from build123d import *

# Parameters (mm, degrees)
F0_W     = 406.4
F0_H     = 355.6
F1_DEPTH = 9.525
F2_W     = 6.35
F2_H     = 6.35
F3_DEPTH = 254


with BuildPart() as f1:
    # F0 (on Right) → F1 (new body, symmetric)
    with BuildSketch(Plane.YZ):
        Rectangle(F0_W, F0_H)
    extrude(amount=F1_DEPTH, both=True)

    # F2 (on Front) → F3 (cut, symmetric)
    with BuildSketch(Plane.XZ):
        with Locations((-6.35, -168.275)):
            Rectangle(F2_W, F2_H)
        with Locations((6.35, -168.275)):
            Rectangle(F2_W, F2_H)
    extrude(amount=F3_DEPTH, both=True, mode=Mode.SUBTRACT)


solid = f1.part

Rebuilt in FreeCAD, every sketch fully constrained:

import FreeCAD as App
import Part
import Sketcher
from FreeCAD import Vector
Q = App.Units.Quantity


def add_polygon(sketch, points):
    """Adds a closed chain of lines whose ends are joined by coincident constraints."""
    first, n = sketch.GeometryCount, len(points)
    for a, b in zip(points, points[1:] + points[:1]):
        sketch.addGeometry(Part.LineSegment(App.Vector(*a, 0), App.Vector(*b, 0)), False)
    for i in range(n):
        sketch.addConstraint(Sketcher.Constraint("Coincident", first + i, 2, first + (i + 1) % n, 1))

doc = App.newDocument("Part")
body = doc.addObject("PartDesign::Body", "Body")

# Sketch on YZ plane
sketch1 = body.newObject("Sketcher::SketchObject", "Sketch")
sketch1.AttachmentSupport = (doc.getObject("YZ_Plane"), [""])
sketch1.MapMode = "FlatFace"
add_polygon(sketch1, [(-203.2, 177.8), (-203.2, -177.8), (203.2, -177.8), (203.2, 177.8)])  # lines 0-3
sketch1.addConstraint([
    Sketcher.Constraint("Vertical", 0),
    Sketcher.Constraint("Horizontal", 1),
    Sketcher.Constraint("Vertical", 2),
    Sketcher.Constraint("Horizontal", 3),
    Sketcher.Constraint("Symmetric", 0, 2, 2, 2, -1, 1),
    Sketcher.Constraint("DistanceX", 1, 1, 1, 2, Q("16 in")),
    Sketcher.Constraint("DistanceY", 0, 2, 0, 1, Q("14 in")),
])
pad1 = body.newObject("PartDesign::Pad", "Pad")
pad1.Profile = sketch1
pad1.Length = Q("0.75 in")
pad1.Midplane = True

# Sketch on XZ plane
sketch2 = body.newObject("Sketcher::SketchObject", "Sketch001")
sketch2.AttachmentSupport = (doc.getObject("XZ_Plane"), [""])
sketch2.MapMode = "FlatFace"
add_polygon(sketch2, [(-9.525, -165.1), (-9.525, -171.45), (-3.175, -171.45), (-3.175, -165.1)])  # lines 0-3
add_polygon(sketch2, [(3.175, -165.1), (3.175, -171.45), (9.525, -171.45), (9.525, -165.1)])  # lines 4-7
sketch2.addConstraint([
    Sketcher.Constraint("Vertical", 0),
    Sketcher.Constraint("Horizontal", 1),
    Sketcher.Constraint("Vertical", 2),
    Sketcher.Constraint("Horizontal", 3),
    Sketcher.Constraint("Vertical", 4),
    Sketcher.Constraint("Horizontal", 5),
    Sketcher.Constraint("Vertical", 6),
    Sketcher.Constraint("Horizontal", 7),
    Sketcher.Constraint("Symmetric", 1, 2, 4, 2, -2),
    Sketcher.Constraint("Symmetric", 3, 2, 6, 2, -2),
    Sketcher.Constraint("Equal", 7, 0),
    Sketcher.Constraint("DistanceX", 1, 1, 1, 2, Q("0.25 in")),
    Sketcher.Constraint("DistanceY", 2, 2, -1, 1, Q("6.5 in")),
    Sketcher.Constraint("DistanceX", 0, 2, 4, 2, Q("0.5 in")),
])
pocket1 = body.newObject("PartDesign::Pocket", "Pocket")
pocket1.Profile = sketch2
pocket1.Length = Q("20 in")
pocket1.Midplane = True

doc.recompute()
